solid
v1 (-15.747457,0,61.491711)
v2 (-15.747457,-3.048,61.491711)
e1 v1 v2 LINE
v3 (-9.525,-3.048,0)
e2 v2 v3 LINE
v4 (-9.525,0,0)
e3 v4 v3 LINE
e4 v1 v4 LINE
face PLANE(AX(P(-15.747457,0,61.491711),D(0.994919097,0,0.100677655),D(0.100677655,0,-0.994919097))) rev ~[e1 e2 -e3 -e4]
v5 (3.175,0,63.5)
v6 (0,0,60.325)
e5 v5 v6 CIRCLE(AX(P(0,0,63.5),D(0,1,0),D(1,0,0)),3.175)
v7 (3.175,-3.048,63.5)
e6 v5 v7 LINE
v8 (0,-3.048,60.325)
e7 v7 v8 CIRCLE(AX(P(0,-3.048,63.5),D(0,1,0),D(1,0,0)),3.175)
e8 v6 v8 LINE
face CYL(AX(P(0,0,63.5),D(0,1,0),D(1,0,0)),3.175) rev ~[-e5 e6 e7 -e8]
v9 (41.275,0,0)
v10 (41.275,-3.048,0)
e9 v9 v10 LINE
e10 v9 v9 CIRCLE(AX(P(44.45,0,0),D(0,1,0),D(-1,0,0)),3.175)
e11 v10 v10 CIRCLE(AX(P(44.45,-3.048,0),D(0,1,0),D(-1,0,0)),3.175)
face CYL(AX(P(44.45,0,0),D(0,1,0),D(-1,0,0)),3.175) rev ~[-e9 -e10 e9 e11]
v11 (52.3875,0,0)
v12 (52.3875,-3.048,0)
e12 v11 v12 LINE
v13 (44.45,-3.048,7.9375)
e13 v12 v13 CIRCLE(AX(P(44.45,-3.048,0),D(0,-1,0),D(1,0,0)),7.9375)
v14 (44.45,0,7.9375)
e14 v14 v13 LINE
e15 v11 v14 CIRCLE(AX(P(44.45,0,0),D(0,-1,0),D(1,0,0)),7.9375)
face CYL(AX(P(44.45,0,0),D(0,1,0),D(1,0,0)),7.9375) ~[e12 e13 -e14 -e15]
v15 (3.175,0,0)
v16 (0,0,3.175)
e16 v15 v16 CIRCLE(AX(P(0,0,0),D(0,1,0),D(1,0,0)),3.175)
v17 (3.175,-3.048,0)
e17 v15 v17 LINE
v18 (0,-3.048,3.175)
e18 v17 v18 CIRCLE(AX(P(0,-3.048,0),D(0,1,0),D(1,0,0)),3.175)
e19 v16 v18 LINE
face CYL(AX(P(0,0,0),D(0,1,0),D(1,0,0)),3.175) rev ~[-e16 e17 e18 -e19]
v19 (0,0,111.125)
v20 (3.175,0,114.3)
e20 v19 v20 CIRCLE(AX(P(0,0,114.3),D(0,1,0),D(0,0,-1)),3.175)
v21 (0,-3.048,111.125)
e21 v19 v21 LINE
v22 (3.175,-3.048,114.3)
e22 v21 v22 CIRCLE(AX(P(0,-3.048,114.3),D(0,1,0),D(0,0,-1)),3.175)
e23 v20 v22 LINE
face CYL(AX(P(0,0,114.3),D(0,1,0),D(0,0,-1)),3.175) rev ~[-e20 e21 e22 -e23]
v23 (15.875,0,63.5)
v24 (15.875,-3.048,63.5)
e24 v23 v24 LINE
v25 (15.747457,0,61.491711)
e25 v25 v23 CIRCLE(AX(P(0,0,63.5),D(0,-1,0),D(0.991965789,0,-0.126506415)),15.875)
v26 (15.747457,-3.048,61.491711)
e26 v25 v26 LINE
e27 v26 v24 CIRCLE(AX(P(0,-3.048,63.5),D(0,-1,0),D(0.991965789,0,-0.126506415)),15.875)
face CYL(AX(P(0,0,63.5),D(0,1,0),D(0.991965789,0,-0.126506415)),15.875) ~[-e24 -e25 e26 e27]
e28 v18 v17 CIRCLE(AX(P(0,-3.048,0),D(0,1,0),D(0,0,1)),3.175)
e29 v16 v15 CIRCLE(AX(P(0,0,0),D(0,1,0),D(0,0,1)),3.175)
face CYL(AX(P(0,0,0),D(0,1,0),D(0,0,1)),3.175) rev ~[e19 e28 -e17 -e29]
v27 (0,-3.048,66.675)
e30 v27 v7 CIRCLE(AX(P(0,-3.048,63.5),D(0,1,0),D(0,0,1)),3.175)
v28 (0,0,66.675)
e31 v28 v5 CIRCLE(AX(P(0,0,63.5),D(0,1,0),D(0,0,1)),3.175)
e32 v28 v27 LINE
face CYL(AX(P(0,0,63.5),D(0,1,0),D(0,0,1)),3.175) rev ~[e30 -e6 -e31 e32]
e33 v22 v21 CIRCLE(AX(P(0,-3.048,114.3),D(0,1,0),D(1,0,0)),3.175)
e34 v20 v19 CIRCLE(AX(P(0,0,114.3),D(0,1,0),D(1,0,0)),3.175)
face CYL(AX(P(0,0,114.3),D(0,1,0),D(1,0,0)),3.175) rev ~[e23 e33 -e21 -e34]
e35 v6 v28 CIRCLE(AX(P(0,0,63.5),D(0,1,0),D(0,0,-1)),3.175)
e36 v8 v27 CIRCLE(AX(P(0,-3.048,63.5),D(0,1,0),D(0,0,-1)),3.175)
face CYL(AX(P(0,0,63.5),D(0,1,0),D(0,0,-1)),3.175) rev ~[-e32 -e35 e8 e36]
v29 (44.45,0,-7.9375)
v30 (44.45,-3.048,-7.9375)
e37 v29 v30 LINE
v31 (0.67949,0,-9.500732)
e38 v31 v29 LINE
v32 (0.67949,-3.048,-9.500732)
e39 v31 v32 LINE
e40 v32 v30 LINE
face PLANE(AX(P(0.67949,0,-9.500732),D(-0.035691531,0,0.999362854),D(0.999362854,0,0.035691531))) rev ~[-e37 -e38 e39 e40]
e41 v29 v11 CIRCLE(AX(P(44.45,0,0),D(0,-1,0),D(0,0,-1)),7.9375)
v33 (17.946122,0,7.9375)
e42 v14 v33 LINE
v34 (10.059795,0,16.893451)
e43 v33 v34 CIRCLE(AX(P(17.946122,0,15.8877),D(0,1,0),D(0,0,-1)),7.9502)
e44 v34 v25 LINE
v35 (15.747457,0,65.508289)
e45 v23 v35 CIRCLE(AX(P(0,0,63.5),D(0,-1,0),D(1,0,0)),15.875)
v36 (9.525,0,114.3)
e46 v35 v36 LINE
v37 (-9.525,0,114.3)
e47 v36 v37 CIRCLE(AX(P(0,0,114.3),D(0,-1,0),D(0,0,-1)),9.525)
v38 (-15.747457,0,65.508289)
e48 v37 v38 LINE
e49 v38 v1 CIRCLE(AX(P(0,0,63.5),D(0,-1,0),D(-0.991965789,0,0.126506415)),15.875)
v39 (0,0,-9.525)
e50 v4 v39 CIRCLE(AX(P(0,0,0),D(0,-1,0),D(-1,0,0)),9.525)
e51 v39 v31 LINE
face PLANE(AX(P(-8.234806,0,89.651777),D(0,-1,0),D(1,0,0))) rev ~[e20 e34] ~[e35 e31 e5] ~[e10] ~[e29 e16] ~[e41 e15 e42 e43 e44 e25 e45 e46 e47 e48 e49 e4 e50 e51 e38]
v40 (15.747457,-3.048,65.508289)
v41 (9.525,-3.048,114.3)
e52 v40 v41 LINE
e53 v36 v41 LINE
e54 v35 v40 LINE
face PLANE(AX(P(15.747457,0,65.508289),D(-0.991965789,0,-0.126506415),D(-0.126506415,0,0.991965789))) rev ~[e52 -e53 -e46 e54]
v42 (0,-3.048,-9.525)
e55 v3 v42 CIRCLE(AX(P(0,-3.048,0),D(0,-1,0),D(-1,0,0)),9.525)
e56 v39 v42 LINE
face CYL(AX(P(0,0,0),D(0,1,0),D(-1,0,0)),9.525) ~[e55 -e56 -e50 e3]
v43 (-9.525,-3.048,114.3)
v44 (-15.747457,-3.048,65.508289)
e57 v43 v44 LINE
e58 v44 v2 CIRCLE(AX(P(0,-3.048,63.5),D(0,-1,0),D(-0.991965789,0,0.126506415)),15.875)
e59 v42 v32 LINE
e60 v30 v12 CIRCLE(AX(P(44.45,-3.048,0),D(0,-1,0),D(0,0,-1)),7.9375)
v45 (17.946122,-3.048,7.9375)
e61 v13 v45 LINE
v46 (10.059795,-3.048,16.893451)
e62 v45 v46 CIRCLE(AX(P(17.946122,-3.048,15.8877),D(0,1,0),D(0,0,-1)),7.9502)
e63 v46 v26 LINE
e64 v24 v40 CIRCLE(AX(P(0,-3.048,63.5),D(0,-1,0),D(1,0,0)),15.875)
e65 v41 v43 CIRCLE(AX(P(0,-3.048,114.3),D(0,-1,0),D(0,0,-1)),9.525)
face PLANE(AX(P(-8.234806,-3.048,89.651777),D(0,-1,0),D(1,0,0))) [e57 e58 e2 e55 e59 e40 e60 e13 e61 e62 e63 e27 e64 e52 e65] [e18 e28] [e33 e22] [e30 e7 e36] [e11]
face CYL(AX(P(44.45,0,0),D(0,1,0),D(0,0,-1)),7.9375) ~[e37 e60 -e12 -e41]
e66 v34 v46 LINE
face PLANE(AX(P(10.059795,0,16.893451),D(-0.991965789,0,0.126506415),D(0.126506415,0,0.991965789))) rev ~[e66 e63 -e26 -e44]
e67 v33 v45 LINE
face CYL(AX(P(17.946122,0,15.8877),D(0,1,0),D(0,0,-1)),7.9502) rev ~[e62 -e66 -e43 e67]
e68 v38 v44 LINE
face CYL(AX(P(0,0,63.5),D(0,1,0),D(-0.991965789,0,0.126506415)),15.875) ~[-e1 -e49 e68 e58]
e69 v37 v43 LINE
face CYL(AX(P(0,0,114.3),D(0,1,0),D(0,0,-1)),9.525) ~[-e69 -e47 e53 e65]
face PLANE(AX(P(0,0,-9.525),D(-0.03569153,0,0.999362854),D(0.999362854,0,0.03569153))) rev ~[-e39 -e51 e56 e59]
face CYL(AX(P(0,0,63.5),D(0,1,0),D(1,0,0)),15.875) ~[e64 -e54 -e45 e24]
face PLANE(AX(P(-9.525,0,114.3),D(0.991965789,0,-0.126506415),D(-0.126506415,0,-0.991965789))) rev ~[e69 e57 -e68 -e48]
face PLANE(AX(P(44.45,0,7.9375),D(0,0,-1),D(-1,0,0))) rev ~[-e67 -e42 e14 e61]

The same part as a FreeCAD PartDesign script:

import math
import FreeCAD as App
import Part
import Sketcher

V = App.Vector
Q = App.Units.Quantity

doc = App.newDocument("Part")
params = doc.addObject("Spreadsheet::Sheet", "Params")
for row, (alias, value) in enumerate([
    ("sketch1_diameter", "0.25 in"),
    ("sketch1_radius", "0.313 in"),
    ("sketch1_radius2", "0.625 in"),
    ("sketch1_radius3", "0.375 in"),
    ("sketch1_radius4", "0.3125 in"),
    ("pad1_length", "0.12 in"),
], start=1):
    params.set(f"A{row}", alias)
    params.set(f"B{row}", "=" + value)
    params.setAlias(f"B{row}", alias)

body = doc.addObject("PartDesign::Body", "Body")

sketch1 = body.newObject("Sketcher::SketchObject", "Sketch")
sketch1.AttachmentSupport = (doc.getObject("XZ_Plane"), [""])
sketch1.MapMode = "FlatFace"
sketch1.addGeometry([
    Part.LineSegment(V(44.45, 7.9375, 0), V(17.946122, 7.9375, 0)),
    Part.ArcOfCircle(Part.Circle(V(17.946122, 15.8877, 0), V(0, 0, 1), 7.9502), math.radians(172.732242), math.radians(270)),
    Part.LineSegment(V(10.059795, 16.893451, 0), V(15.747457, 61.491711, 0)),
    Part.ArcOfCircle(Part.Circle(V(0, 63.5, 0), V(0, 0, 1), 15.875), math.radians(-7.267758), math.radians(0)),
    Part.ArcOfCircle(Part.Circle(V(0, 63.5, 0), V(0, 0, 1), 15.875), math.radians(0), math.radians(7.267758)),
    Part.LineSegment(V(15.747457, 65.508289, 0), V(9.525, 114.3, 0)),
    Part.ArcOfCircle(Part.Circle(V(0, 114.3, 0), V(0, 0, 1), 9.525), math.radians(0), math.radians(180)),
    Part.LineSegment(V(-9.525, 114.3, 0), V(-15.747457, 65.508289, 0)),
    Part.ArcOfCircle(Part.Circle(V(0, 63.5, 0), V(0, 0, 1), 15.875), math.radians(172.732242), math.radians(187.267758)),
    Part.LineSegment(V(-15.747457, 61.491711, 0), V(-9.525, 0, 0)),
    Part.ArcOfCircle(Part.Circle(V(0, 0, 0), V(0, 0, 1), 9.525), math.radians(180), math.radians(270)),
    Part.LineSegment(V(0, -9.525, 0), V(0.67949, -9.500732, 0)),
    Part.LineSegment(V(0.67949, -9.500732, 0), V(44.45, -7.9375, 0)),
    Part.ArcOfCircle(Part.Circle(V(44.45, 0, 0), V(0, 0, 1), 7.9375), math.radians(-90), math.radians(0)),
    Part.ArcOfCircle(Part.Circle(V(44.45, 0, 0), V(0, 0, 1), 7.9375), math.radians(0), math.radians(90)),
    Part.ArcOfCircle(Part.Circle(V(0, 63.5, 0), V(0, 0, 1), 3.175), math.radians(90), math.radians(270)),
    Part.ArcOfCircle(Part.Circle(V(0, 63.5, 0), V(0, 0, 1), 3.175), math.radians(0), math.radians(90)),
    Part.ArcOfCircle(Part.Circle(V(0, 63.5, 0), V(0, 0, 1), 3.175), math.radians(-90), math.radians(0)),
    Part.ArcOfCircle(Part.Circle(V(0, 0, 0), V(0, 0, 1), 3.175), math.radians(90), math.radians(360)),
    Part.ArcOfCircle(Part.Circle(V(0, 0, 0), V(0, 0, 1), 3.175), math.radians(0), math.radians(90)),
    Part.Circle(V(44.45, 0, 0), V(0, 0, 1), 3.175),
    Part.ArcOfCircle(Part.Circle(V(0, 114.3, 0), V(0, 0, 1), 3.175), math.radians(0), math.radians(270)),
    Part.ArcOfCircle(Part.Circle(V(0, 114.3, 0), V(0, 0, 1), 3.175), math.radians(-90), math.radians(0)),
], False)
sketch1.addConstraint([
    Sketcher.Constraint("Tangent", 0, 2, 1, 2),
    Sketcher.Constraint("Tangent", 1, 1, 2, 1),
    Sketcher.Constraint("Tangent", 2, 2, 3, 1),
    Sketcher.Constraint("Tangent", 3, 2, 4, 1),
    Sketcher.Constraint("Tangent", 4, 2, 5, 1),
    Sketcher.Constraint("Coincident", 5, 2, 6, 1),
    Sketcher.Constraint("Coincident", 6, 2, 7, 1),
    Sketcher.Constraint("Tangent", 7, 2, 8, 1),
    Sketcher.Constraint("Coincident", 8, 2, 9, 1),
    Sketcher.Constraint("Coincident", 9, 2, 10, 1),
    Sketcher.Constraint("Coincident", 10, 2, 11, 1),
    Sketcher.Constraint("Coincident", 11, 2, 12, 1),
    Sketcher.Constraint("Coincident", 12, 2, 13, 1),
    Sketcher.Constraint("Tangent", 13, 2, 14, 1),
    Sketcher.Constraint("Tangent", 14, 2, 0, 1),
    Sketcher.Constraint("Tangent", 15, 1, 16, 2),
    Sketcher.Constraint("Tangent", 16, 1, 17, 2),
    Sketcher.Constraint("Tangent", 17, 1, 15, 2),
    Sketcher.Constraint("Tangent", 18, 1, 19, 2),
    Sketcher.Constraint("Coincident", 19, 1, 18, 2),
    Sketcher.Constraint("Tangent", 21, 1, 22, 2),
    Sketcher.Constraint("Coincident", 22, 1, 21, 2),
    Sketcher.Constraint("Horizontal", 0),
    Sketcher.Constraint("Coincident", 10, 3, -1, 1),
    Sketcher.Constraint("Coincident", 18, 3, -1, 1),
    Sketcher.Constraint("Coincident", 8, 3, 3, 3),
    Sketcher.Constraint("Coincident", 15, 3, 3, 3),
    Sketcher.Constraint("Coincident", 20, 3, 13, 3),
    Sketcher.Constraint("Coincident", 21, 3, 6, 3),
    Sketcher.Constraint("Equal", 3, 4),
    Sketcher.Constraint("Equal", 4, 8),
    Sketcher.Constraint("Equal", 6, 10),
    Sketcher.Constraint("Equal", 13, 14),
    Sketcher.Constraint("Equal", 17, 18),
    Sketcher.Constraint("Equal", 19, 20),
    Sketcher.Constraint("Equal", 20, 21),
    Sketcher.Constraint("Symmetric", 5, 2, 6, 2, -2),
    Sketcher.Constraint("Symmetric", 2, 2, 8, 2, -2),
    Sketcher.Constraint("Symmetric", 12, 2, 14, 2, -1),
    Sketcher.Constraint("PointOnObject", 9, 2, -1),
    Sketcher.Constraint("PointOnObject", 10, 2, -2),
    Sketcher.Constraint("PointOnObject", 13, 2, -1),
    Sketcher.Constraint("PointOnObject", 15, 1, -2),
    Sketcher.Constraint("PointOnObject", 17, 1, -2),
    Sketcher.Constraint("PointOnObject", 18, 1, -2),
    Sketcher.Constraint("PointOnObject", 19, 1, -1),
    Sketcher.Constraint("PointOnObject", 22, 1, -2),
    Sketcher.Constraint("Parallel", 2, 7),
    Sketcher.Constraint("Parallel", 11, 12),
    Sketcher.Constraint("Horizontal", 17, 3, 3, 2),
    Sketcher.Constraint("Horizontal", 22, 3, 5, 2),
    Sketcher.Constraint("Horizontal", 3, 2, 16, 1),
    Sketcher.Constraint("Horizontal", 6, 2, 21, 1),
    Sketcher.Constraint("Diameter", 20, Q("0.25 in")),
    Sketcher.Constraint("Radius", 1, Q("0.313 in")),
    Sketcher.Constraint("Radius", 3, Q("0.625 in")),
    Sketcher.Constraint("Radius", 6, Q("0.375 in")),
    Sketcher.Constraint("Radius", 13, Q("0.3125 in")),
    Sketcher.Constraint("DistanceY", 4, 3, 6, 3, Q("2 in")),
    Sketcher.Constraint("DistanceY", -1, 1, 3, 3, Q("2.5 in")),
    Sketcher.Constraint("DistanceX", -1, 1, 13, 3, Q("1.75 in")),
    Sketcher.Constraint("DistanceX", -1, 1, 11, 2, 0.67949),
])
sketch1.setExpression("Constraints[53]", "Params.sketch1_diameter")
sketch1.setExpression("Constraints[54]", "Params.sketch1_radius")
sketch1.setExpression("Constraints[55]", "Params.sketch1_radius2")
sketch1.setExpression("Constraints[56]", "Params.sketch1_radius3")
sketch1.setExpression("Constraints[57]", "Params.sketch1_radius4")
pad1 = body.newObject("PartDesign::Pad", "Pad")
pad1.Profile = sketch1
pad1.setExpression("Length", "Params.pad1_length")

doc.recompute()
